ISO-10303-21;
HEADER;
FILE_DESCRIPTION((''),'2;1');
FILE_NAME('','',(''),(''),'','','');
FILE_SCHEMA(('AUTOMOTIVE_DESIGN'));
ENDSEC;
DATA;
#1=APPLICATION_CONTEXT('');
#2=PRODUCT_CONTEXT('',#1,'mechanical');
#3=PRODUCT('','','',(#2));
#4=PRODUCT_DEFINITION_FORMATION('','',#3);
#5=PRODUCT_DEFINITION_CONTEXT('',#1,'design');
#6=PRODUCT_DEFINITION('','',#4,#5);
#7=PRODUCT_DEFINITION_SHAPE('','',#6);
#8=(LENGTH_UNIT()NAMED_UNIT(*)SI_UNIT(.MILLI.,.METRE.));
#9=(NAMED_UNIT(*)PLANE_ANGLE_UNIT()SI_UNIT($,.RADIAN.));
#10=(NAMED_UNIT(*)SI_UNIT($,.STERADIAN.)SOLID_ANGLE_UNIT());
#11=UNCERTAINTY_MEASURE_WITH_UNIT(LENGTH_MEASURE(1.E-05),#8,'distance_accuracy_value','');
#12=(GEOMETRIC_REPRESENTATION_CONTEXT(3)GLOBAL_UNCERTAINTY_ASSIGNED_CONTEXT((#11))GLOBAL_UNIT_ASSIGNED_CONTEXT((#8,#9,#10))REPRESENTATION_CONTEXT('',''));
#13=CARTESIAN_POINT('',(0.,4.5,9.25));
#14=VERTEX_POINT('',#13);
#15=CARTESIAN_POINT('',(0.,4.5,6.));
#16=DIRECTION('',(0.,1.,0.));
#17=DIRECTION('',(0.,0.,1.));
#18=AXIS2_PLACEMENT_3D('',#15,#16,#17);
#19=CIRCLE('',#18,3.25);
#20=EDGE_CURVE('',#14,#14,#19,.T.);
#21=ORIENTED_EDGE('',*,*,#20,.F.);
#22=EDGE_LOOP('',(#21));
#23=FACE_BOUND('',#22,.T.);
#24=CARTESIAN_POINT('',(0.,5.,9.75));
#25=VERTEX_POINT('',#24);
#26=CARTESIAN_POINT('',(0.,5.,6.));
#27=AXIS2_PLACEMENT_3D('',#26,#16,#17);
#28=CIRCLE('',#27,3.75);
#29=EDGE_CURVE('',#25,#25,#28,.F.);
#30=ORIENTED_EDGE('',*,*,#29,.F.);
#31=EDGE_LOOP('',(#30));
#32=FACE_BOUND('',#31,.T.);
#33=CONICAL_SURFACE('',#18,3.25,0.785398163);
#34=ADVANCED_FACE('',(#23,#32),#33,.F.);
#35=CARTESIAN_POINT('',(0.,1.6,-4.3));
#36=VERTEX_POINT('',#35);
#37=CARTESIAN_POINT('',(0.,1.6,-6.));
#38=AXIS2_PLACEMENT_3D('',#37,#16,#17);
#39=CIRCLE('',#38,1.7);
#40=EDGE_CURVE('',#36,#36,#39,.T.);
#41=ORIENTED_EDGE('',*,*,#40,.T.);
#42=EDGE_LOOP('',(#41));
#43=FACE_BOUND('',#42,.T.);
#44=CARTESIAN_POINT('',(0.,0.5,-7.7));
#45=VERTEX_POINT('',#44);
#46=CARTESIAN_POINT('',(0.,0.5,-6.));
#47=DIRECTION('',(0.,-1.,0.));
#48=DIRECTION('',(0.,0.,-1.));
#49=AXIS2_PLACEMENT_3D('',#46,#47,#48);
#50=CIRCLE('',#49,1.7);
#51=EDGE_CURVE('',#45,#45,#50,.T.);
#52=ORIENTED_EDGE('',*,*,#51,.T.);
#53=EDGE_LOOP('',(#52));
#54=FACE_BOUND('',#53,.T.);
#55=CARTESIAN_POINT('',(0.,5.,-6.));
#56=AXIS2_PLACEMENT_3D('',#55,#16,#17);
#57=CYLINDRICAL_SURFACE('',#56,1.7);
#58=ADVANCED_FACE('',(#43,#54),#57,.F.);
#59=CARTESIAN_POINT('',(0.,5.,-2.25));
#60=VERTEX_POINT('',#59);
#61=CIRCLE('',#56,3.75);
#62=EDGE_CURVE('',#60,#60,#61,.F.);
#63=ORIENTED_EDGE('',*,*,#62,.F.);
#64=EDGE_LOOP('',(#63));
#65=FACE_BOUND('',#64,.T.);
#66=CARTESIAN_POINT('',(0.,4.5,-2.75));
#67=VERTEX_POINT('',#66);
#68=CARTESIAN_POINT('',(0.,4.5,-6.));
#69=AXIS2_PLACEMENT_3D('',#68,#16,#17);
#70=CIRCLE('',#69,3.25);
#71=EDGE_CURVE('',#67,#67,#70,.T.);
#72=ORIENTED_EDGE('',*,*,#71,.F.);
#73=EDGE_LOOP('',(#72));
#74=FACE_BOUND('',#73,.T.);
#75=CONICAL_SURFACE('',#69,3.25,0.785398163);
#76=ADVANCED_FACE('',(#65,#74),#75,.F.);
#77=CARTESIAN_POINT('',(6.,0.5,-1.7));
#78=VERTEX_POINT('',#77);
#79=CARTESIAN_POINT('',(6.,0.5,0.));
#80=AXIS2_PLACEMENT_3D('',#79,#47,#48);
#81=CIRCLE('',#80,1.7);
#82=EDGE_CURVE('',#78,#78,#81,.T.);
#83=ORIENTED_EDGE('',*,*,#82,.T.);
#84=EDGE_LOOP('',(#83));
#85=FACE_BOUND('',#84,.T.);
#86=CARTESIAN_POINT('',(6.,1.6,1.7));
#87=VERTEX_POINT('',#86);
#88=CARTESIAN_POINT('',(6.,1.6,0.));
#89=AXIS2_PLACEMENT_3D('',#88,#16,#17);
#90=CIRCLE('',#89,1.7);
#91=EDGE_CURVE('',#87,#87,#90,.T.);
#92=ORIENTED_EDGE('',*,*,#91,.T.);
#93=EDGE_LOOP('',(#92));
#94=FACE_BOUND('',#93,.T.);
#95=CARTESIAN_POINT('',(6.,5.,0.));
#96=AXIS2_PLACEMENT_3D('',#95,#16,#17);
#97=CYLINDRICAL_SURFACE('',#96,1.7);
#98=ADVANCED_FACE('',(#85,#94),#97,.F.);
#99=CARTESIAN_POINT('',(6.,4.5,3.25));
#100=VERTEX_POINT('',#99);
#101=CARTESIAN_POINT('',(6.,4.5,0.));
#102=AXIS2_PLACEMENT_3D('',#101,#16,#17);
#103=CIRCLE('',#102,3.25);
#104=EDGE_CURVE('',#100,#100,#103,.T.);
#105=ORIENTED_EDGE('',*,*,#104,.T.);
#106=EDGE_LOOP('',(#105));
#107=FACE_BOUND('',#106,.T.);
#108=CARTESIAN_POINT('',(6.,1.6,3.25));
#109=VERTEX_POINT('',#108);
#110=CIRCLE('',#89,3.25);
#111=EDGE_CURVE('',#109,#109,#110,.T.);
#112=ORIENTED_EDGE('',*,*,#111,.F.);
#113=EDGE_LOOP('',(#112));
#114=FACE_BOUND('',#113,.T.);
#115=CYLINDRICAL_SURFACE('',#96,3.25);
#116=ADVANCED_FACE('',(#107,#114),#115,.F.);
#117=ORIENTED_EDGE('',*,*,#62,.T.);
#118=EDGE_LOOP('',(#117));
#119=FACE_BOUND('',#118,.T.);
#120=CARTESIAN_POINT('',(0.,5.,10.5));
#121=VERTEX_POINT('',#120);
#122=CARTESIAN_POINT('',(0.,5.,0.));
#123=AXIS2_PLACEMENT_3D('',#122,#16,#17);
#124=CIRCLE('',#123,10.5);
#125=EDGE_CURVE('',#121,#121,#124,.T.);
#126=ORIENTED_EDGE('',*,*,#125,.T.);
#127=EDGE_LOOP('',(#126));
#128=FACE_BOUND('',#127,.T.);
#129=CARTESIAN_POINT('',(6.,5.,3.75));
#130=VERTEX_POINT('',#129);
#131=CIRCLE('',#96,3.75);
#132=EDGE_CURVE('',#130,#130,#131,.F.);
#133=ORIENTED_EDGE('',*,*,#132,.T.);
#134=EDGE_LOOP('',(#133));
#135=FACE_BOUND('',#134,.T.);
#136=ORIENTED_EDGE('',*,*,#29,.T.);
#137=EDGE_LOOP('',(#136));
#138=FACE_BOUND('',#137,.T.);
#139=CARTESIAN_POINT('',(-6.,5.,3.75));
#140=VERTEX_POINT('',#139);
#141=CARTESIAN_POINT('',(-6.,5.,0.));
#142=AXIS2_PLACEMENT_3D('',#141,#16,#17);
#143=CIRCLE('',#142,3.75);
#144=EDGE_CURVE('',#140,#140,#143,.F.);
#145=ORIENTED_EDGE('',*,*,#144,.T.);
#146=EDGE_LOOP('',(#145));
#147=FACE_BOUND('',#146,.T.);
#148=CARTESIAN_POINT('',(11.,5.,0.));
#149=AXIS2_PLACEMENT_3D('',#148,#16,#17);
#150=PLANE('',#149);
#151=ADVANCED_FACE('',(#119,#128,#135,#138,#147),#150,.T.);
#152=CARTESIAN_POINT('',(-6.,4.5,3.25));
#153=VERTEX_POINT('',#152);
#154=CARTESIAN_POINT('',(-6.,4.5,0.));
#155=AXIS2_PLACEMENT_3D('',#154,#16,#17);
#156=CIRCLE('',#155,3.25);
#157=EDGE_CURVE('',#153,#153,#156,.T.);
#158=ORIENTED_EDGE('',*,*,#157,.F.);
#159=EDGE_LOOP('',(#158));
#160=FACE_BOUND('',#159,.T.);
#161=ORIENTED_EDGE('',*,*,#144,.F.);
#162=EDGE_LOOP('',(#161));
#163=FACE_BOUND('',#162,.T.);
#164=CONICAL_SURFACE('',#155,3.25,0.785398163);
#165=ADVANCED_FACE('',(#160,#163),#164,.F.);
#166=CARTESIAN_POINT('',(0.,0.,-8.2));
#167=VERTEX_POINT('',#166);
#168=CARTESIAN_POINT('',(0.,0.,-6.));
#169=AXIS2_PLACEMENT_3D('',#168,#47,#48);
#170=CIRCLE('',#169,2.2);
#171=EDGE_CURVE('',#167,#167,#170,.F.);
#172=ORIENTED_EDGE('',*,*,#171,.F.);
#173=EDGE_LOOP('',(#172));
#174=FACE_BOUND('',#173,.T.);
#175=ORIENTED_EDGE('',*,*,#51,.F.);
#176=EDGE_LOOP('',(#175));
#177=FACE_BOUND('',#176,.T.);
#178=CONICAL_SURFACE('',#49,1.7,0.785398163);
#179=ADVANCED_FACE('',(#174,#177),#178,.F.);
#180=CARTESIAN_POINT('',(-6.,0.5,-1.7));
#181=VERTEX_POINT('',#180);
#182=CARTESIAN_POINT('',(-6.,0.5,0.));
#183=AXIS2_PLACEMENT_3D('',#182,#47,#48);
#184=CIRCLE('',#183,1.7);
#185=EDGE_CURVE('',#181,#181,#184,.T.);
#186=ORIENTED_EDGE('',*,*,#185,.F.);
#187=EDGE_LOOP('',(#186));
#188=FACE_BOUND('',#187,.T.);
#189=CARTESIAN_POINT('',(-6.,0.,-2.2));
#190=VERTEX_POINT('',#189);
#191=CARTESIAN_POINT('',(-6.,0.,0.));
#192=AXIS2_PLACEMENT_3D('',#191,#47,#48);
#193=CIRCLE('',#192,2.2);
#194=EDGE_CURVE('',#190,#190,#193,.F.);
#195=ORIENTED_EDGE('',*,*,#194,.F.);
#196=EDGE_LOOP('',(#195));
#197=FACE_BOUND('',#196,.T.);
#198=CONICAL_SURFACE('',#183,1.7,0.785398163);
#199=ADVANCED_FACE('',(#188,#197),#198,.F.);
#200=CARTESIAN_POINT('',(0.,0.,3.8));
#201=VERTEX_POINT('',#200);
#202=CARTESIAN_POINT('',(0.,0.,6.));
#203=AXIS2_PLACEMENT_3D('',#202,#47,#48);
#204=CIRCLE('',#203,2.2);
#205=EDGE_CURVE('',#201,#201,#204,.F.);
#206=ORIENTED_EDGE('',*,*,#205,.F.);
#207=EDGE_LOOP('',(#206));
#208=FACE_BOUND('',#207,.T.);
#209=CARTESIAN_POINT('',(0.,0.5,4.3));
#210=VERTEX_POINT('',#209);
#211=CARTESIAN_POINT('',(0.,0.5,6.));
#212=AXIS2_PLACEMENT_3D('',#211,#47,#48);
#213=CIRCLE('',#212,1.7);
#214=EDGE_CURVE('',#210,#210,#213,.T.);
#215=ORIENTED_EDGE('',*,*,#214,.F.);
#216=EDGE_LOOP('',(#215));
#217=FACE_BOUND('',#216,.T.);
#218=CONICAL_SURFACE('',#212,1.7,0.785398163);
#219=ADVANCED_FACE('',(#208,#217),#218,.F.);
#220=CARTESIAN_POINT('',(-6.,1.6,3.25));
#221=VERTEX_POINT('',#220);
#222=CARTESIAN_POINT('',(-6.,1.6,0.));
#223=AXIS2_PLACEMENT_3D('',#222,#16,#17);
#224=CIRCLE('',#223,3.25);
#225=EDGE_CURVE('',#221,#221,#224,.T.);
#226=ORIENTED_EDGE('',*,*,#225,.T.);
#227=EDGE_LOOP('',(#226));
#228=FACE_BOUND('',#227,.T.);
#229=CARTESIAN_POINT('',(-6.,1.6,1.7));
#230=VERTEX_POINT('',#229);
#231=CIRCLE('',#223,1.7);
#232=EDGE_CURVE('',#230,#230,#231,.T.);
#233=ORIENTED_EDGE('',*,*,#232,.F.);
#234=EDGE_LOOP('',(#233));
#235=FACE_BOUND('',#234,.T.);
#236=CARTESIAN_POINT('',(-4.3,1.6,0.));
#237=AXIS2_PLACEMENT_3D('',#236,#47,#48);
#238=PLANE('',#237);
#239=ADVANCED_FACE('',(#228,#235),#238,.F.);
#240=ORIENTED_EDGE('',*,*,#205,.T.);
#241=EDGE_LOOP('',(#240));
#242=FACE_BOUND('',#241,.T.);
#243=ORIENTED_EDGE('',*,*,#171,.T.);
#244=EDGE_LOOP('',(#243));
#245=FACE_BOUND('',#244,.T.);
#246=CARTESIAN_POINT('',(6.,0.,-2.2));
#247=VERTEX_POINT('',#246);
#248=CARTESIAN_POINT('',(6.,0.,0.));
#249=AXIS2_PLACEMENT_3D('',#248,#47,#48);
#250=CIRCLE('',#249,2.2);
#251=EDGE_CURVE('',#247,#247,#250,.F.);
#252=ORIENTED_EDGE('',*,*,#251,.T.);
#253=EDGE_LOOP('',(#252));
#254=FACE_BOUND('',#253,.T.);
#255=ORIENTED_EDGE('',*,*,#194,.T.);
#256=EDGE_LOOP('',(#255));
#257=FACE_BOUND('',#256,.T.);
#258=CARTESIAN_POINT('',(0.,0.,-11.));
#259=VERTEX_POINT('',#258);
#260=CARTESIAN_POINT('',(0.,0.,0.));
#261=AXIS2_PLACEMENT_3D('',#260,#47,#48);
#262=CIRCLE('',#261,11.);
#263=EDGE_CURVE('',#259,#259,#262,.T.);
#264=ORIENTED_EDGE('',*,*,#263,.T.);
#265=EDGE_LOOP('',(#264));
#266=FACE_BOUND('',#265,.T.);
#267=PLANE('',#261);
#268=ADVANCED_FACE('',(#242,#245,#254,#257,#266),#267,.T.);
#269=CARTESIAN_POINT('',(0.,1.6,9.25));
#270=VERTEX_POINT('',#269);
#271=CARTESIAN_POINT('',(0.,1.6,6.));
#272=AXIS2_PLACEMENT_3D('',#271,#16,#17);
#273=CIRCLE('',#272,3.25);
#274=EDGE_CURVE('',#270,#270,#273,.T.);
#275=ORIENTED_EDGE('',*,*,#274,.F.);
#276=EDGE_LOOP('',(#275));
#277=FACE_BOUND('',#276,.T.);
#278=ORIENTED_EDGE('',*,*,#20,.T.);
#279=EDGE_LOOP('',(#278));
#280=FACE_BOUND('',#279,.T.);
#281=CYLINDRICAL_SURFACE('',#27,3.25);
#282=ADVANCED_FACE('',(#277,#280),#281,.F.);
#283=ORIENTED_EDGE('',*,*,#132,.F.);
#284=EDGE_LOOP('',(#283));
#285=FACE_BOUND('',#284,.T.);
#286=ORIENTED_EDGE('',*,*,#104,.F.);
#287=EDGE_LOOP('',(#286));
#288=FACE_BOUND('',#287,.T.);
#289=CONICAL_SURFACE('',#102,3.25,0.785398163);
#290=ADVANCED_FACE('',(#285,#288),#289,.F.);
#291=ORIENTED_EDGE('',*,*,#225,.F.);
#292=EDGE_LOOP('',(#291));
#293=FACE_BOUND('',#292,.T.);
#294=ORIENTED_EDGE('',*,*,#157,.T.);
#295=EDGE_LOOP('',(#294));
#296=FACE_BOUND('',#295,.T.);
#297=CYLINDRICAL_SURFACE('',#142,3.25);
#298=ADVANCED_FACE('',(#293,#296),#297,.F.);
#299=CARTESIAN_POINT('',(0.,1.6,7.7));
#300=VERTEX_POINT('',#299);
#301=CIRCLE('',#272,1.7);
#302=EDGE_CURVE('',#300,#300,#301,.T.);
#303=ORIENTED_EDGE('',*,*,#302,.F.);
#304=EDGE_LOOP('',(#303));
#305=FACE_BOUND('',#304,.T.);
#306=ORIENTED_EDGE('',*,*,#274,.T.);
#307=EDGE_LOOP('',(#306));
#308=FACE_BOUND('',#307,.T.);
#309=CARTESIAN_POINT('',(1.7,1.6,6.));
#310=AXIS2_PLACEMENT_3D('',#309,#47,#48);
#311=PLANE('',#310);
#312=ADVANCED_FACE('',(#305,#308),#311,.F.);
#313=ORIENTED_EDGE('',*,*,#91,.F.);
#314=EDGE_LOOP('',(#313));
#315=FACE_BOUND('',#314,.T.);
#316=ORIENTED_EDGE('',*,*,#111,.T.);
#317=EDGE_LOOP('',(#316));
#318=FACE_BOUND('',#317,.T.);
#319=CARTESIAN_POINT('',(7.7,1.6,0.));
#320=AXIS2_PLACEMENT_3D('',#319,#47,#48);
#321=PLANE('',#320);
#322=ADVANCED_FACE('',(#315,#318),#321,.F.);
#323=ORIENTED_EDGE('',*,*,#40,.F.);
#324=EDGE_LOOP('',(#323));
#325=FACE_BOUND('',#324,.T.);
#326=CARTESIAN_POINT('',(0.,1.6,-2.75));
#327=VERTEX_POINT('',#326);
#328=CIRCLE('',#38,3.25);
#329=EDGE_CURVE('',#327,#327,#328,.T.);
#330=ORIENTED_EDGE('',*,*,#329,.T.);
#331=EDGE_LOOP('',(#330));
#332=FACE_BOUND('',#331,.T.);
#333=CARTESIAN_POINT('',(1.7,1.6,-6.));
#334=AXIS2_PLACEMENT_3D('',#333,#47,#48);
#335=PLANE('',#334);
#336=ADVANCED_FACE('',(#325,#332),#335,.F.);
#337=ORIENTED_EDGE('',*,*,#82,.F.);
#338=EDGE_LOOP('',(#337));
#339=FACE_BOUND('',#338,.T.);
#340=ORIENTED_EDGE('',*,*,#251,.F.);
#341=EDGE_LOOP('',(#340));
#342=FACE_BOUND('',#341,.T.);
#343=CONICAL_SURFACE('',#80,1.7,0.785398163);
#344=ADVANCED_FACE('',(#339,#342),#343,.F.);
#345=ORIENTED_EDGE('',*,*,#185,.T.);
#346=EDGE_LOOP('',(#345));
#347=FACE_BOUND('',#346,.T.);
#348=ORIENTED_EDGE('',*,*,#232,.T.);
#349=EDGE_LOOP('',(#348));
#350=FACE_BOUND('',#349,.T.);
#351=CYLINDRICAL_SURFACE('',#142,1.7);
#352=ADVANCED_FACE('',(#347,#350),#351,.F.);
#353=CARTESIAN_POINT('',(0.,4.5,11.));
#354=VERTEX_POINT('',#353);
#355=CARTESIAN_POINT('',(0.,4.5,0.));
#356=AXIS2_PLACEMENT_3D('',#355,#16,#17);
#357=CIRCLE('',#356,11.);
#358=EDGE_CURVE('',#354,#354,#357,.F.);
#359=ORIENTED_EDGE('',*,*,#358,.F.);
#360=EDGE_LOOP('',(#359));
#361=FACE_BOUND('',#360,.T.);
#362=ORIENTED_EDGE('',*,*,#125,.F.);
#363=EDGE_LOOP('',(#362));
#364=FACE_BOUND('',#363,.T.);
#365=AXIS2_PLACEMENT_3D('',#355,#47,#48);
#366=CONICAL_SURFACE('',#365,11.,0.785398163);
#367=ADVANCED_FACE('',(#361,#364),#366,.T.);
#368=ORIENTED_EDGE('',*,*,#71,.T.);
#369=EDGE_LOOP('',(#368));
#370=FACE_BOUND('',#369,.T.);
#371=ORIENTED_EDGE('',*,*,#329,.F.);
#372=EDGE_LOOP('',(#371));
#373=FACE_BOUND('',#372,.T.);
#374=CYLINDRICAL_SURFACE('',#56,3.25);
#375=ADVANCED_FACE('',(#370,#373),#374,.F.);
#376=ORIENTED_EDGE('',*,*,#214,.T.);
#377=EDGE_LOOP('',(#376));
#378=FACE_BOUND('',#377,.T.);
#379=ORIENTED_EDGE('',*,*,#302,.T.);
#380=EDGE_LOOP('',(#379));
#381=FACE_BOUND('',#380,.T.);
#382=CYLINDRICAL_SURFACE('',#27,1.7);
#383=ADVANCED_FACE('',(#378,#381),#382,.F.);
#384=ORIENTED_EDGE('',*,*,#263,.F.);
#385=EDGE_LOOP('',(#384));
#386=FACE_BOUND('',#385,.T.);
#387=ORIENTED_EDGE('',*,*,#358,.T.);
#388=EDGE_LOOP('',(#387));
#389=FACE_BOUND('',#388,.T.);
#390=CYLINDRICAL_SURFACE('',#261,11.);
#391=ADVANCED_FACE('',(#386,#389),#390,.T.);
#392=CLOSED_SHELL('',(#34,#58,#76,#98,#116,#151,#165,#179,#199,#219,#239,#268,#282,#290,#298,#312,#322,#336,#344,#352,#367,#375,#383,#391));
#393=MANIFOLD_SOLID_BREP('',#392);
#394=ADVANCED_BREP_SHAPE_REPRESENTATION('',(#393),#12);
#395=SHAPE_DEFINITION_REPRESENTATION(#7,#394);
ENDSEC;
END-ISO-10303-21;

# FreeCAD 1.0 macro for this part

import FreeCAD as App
import Part
import Sketcher

V = App.Vector


def edges_at(feature, points):
    """Names of the edges that pass closest to the given points."""
    edges = feature.Shape.Edges
    near = lambda p: min(range(len(edges)), key=lambda i: edges[i].distToShape(Part.Vertex(*p))[0])
    return sorted({f"Edge{near(p) + 1}" for p in points})

doc = App.newDocument("Part")
params = doc.addObject("Spreadsheet::Sheet", "Params")
for row, (alias, value) in enumerate([
    ("sketch1_width", "11 mm"),
    ("sketch1_height", "5 mm"),
    ("revolution_angle", "360 deg"),
    ("sketch2_diameter", "3.4 mm"),
    ("hole_diameter", "3.4 mm"),
    ("hole_depth", "11 mm"),
    ("hole_cbore_diameter", "6.5 mm"),
    ("hole_cbore_depth", "3.4 mm"),
    ("chamfer_size", "0.5 mm"),
], start=1):
    params.set(f"A{row}", alias)
    params.set(f"B{row}", "=" + value)
    params.setAlias(f"B{row}", alias)

body = doc.addObject("PartDesign::Body", "Body")

# Sketch on XY plane
sketch1 = body.newObject("Sketcher::SketchObject", "Sketch")
sketch1.AttachmentSupport = (doc.getObject("XY_Plane"), [""])
sketch1.MapMode = "FlatFace"
sketch1.addGeometry([
    Part.LineSegment(V(0, 5, 0), V(0, 0, 0)),
    Part.LineSegment(V(0, 0, 0), V(11, 0, 0)),
    Part.LineSegment(V(11, 0, 0), V(11, 5, 0)),
    Part.LineSegment(V(11, 5, 0), V(0, 5, 0)),
], False)
sketch1.addConstraint([
    Sketcher.Constraint("Coincident", 0, 2, 1, 1),
    Sketcher.Constraint("Coincident", 1, 2, 2, 1),
    Sketcher.Constraint("Coincident", 2, 2, 3, 1),
    Sketcher.Constraint("Coincident", 3, 2, 0, 1),
    Sketcher.Constraint("Vertical", 0),
    Sketcher.Constraint("Horizontal", 1),
    Sketcher.Constraint("Vertical", 2),
    Sketcher.Constraint("Horizontal", 3),
    Sketcher.Constraint("Coincident", 0, 2, -1, 1),
    Sketcher.Constraint("DistanceX", 1, 1, 1, 2, 11.0),
    Sketcher.Constraint("DistanceY", 0, 2, 0, 1, 5.0),
])
sketch1.setExpression("Constraints[9]", "Params.sketch1_width")
sketch1.setExpression("Constraints[10]", "Params.sketch1_height")
revolution = body.newObject("PartDesign::Revolution", "Revolution")
revolution.Profile = sketch1
revolution.ReferenceAxis = (sketch1, ["V_Axis"])
revolution.setExpression("Angle", "Params.revolution_angle")

# Sketch on XZ plane
sketch2 = body.newObject("Sketcher::SketchObject", "Sketch001")
sketch2.AttachmentSupport = (doc.getObject("XZ_Plane"), [""])
sketch2.MapMode = "FlatFace"
sketch2.AttachmentOffset = App.Placement(V(0, 0, -5), App.Rotation())
sketch2.addGeometry([
    Part.Circle(V(-6, 0, 0), V(0, 0, 1), 1.7),
    Part.Circle(V(0, -6, 0), V(0, 0, 1), 1.7),
    Part.Circle(V(6, 0, 0), V(0, 0, 1), 1.7),
    Part.Circle(V(0, 6, 0), V(0, 0, 1), 1.7),
], False)
sketch2.addConstraint([
    Sketcher.Constraint("Equal", 0, 1),
    Sketcher.Constraint("Equal", 1, 2),
    Sketcher.Constraint("Equal", 2, 3),
    Sketcher.Constraint("Symmetric", 0, 3, 2, 3, -1, 1),
    Sketcher.Constraint("Symmetric", 1, 3, 3, 3, -1, 1),
    Sketcher.Constraint("PointOnObject", 0, 3, -1),
    Sketcher.Constraint("PointOnObject", 1, 3, -2),
    Sketcher.Constraint("Diameter", 0, 3.4),
    Sketcher.Constraint("DistanceX", 0, 3, -1, 1, 6.0),
    Sketcher.Constraint("DistanceY", 1, 3, -1, 1, 6.0),
])
sketch2.setExpression("Constraints[7]", "Params.sketch2_diameter")
doc.recompute()
hole = body.newObject("PartDesign::Hole", "Hole")
hole.Profile = sketch2
hole.ThreadType = "None"
hole.setExpression("Diameter", "Params.hole_diameter")
hole.DepthType = "Dimension"
hole.setExpression("Depth", "Params.hole_depth")
hole.DrillPoint = "Angled"
hole.DrillPointAngle = 118
hole.HoleCutType = "Counterbore"
hole.setExpression("HoleCutDiameter", "Params.hole_cbore_diameter")
hole.setExpression("HoleCutDepth", "Params.hole_cbore_depth")
hole.Reversed = True
doc.recompute()

chamfer = body.newObject("PartDesign::Chamfer", "Chamfer")
chamfer.Base = (hole, edges_at(hole, [
    (-4.3, 0, 0),
    (-9.25, 5, 0),
    (1.7, 0, 6),
    (-3.25, 5, 6),
    (7.7, 0, 0),
    (2.75, 5, 0),
    (1.7, 0, -6),
    (-3.25, 5, -6),
    (0, 5, 11),
]))
chamfer.setExpression("Size", "Params.chamfer_size")

doc.recompute()
